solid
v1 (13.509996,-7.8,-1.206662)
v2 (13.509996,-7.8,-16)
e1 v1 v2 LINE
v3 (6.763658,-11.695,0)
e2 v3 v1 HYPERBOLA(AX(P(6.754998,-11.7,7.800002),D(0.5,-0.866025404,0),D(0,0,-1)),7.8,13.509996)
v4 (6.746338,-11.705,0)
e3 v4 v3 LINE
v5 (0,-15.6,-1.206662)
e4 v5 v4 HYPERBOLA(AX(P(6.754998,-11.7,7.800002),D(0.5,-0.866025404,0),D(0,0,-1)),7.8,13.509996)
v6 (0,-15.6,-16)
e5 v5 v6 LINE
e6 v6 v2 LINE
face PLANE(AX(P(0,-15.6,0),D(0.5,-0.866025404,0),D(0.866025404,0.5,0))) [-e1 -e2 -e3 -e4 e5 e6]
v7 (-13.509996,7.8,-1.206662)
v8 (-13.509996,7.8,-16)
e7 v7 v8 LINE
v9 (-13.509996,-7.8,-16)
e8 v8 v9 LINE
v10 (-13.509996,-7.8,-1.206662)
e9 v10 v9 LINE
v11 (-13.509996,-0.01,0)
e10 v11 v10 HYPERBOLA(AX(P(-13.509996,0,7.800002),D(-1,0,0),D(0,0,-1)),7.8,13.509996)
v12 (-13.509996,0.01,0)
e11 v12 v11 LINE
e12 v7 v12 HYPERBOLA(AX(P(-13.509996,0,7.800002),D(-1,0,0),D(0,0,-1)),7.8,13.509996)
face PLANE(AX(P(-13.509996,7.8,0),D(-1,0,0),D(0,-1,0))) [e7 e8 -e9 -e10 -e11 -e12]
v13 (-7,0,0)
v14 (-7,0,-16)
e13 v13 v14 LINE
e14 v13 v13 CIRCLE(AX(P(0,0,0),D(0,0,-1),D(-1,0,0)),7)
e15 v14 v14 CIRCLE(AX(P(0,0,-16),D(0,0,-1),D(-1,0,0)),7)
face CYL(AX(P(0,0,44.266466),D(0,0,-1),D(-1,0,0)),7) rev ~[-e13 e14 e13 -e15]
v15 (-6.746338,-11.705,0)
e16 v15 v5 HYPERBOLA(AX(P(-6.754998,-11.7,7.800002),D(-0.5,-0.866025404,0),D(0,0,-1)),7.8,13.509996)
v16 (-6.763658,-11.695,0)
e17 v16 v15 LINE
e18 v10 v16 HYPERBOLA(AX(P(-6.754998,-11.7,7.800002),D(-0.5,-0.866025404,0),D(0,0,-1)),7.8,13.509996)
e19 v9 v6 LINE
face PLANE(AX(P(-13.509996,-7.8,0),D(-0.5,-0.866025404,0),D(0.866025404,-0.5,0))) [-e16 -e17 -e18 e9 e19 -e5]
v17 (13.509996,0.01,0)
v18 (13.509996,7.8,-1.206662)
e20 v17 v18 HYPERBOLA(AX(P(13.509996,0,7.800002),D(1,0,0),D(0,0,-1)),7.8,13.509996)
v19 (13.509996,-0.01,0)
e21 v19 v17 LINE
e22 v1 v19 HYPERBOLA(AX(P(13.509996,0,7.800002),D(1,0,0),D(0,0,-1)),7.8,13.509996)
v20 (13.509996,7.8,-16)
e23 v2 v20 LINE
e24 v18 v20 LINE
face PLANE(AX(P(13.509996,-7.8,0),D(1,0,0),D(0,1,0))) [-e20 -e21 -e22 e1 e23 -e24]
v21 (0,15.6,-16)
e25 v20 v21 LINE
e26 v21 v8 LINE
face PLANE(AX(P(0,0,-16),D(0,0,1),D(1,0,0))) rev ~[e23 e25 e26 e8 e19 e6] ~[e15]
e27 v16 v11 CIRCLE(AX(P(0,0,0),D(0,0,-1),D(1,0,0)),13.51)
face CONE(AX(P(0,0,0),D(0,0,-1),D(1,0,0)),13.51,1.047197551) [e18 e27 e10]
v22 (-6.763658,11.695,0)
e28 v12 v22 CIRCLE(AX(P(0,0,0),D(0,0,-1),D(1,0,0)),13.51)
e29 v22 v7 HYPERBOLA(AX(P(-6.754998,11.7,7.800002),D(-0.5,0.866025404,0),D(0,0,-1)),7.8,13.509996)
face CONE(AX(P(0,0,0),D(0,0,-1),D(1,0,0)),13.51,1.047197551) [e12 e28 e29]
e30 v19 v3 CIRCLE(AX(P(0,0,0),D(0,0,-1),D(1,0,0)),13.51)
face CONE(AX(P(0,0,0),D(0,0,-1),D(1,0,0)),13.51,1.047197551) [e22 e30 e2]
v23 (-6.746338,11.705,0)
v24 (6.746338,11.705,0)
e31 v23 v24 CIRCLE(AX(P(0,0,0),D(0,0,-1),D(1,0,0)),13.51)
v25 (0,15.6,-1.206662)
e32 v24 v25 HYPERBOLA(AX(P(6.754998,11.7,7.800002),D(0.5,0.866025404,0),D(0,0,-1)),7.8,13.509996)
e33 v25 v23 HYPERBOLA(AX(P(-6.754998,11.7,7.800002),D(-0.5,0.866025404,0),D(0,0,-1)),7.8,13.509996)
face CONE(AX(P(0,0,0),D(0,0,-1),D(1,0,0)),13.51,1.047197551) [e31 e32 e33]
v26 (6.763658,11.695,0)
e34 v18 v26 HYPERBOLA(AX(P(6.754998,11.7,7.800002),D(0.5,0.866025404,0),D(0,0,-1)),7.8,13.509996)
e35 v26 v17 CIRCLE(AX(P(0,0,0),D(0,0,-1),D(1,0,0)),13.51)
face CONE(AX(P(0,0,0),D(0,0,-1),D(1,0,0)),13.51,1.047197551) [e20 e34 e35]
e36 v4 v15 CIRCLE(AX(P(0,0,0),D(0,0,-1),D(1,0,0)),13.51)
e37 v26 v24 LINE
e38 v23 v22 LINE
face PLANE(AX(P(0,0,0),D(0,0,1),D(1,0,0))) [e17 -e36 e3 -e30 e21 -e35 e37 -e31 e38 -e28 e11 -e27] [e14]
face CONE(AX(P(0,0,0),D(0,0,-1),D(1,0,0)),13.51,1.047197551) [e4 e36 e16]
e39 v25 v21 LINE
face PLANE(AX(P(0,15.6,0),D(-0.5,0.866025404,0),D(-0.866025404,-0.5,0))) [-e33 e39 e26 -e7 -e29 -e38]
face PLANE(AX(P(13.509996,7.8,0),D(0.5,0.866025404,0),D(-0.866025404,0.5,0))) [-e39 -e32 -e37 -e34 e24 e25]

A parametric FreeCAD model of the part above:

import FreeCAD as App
import Part
import Sketcher
from FreeCAD import Vector
Q = App.Units.Quantity

doc = App.newDocument("Part")
body = doc.addObject("PartDesign::Body", "Body")

# Sketch on XY plane
sketch1 = doc.addObject("Sketcher::SketchObject", "Sketch")
body.addObject(sketch1)
sketch1.AttachmentSupport = (doc.XY_Plane, [""])
sketch1.MapMode = "FlatFace"
sketch1.addGeometry(Part.LineSegment(Vector(13.509996, -7.8, 0), Vector(13.509996, 7.8, 0)), False)
sketch1.addGeometry(Part.LineSegment(Vector(13.509996, 7.8, 0), Vector(0, 15.6, 0)), False)
sketch1.addGeometry(Part.LineSegment(Vector(0, 15.6, 0), Vector(-13.509996, 7.8, 0)), False)
sketch1.addGeometry(Part.LineSegment(Vector(-13.509996, 7.8, 0), Vector(-13.509996, -7.8, 0)), False)
sketch1.addGeometry(Part.LineSegment(Vector(-13.509996, -7.8, 0), Vector(0, -15.6, 0)), False)
sketch1.addGeometry(Part.LineSegment(Vector(0, -15.6, 0), Vector(13.509996, -7.8, 0)), False)
sketch1.addConstraint(Sketcher.Constraint("Coincident", 0, 2, 1, 1))
sketch1.addConstraint(Sketcher.Constraint("Coincident", 1, 2, 2, 1))
sketch1.addConstraint(Sketcher.Constraint("Coincident", 2, 2, 3, 1))
sketch1.addConstraint(Sketcher.Constraint("Coincident", 3, 2, 4, 1))
sketch1.addConstraint(Sketcher.Constraint("Coincident", 4, 2, 5, 1))
sketch1.addConstraint(Sketcher.Constraint("Coincident", 5, 2, 0, 1))
sketch1.addConstraint(Sketcher.Constraint("Vertical", 0))
sketch1.addConstraint(Sketcher.Constraint("Vertical", 3))
sketch1.addConstraint(Sketcher.Constraint("Symmetric", 0, 2, 3, 2, -1, 1))
sketch1.addConstraint(Sketcher.Constraint("Symmetric", 1, 2, 4, 2, -1, 1))
sketch1.addConstraint(Sketcher.Constraint("PointOnObject", 1, 2, -2))
sketch1.addConstraint(Sketcher.Constraint("Parallel", 2, 5))
sketch1.addConstraint(Sketcher.Constraint("Horizontal", 0, 2, 2, 2))
sketch1.addConstraint(Sketcher.Constraint("Angle", 1, Q("150 deg")))
sketch1.addConstraint(Sketcher.Constraint("DistanceY", 0, 1, 0, 2, Q("15.6 mm")))
sketch1.addConstraint(Sketcher.Constraint("Distance", 1, Q("15.6 mm")))
pad1 = doc.addObject("PartDesign::Pad", "Pad")
body.addObject(pad1)
pad1.Profile = sketch1
pad1.Length = 16
pad1.Reversed = True

# Sketch on XZ plane
sketch2 = doc.addObject("Sketcher::SketchObject", "Sketch001")
body.addObject(sketch2)
sketch2.AttachmentSupport = (doc.XZ_Plane, [""])
sketch2.MapMode = "FlatFace"
sketch2.addGeometry(Part.LineSegment(Vector(16, -1.437602, 0), Vector(16, 0, 0)), False)
sketch2.addGeometry(Part.LineSegment(Vector(16, 0, 0), Vector(13.51, 0, 0)), False)
sketch2.addGeometry(Part.LineSegment(Vector(13.51, 0, 0), Vector(16, -1.437602, 0)), False)
sketch2.addConstraint(Sketcher.Constraint("Coincident", 0, 2, 1, 1))
sketch2.addConstraint(Sketcher.Constraint("Coincident", 1, 2, 2, 1))
sketch2.addConstraint(Sketcher.Constraint("Coincident", 2, 2, 0, 1))
sketch2.addConstraint(Sketcher.Constraint("Vertical", 0))
sketch2.addConstraint(Sketcher.Constraint("Horizontal", 1))
sketch2.addConstraint(Sketcher.Constraint("PointOnObject", 0, 2, -1))
sketch2.addConstraint(Sketcher.Constraint("Angle", 2, Q("-30 deg")))
sketch2.addConstraint(Sketcher.Constraint("DistanceX", -1, 1, 0, 2, Q("16 mm")))
sketch2.addConstraint(Sketcher.Constraint("DistanceX", 1, 2, 1, 1, Q("2.49 mm")))
groove = doc.addObject("PartDesign::Groove", "Groove")
body.addObject(groove)
groove.Profile = sketch2
groove.ReferenceAxis = (sketch2, ["V_Axis"])
groove.Angle = 360

# Sketch on XY plane
sketch3 = doc.addObject("Sketcher::SketchObject", "Sketch002")
body.addObject(sketch3)
sketch3.AttachmentSupport = (doc.XY_Plane, [""])
sketch3.MapMode = "FlatFace"
sketch3.addGeometry(Part.Circle(Vector(0, 0, 0), Vector(0, 0, 1), 7), False)
sketch3.addConstraint(Sketcher.Constraint("Coincident", 0, 3, -1, 1))
sketch3.addConstraint(Sketcher.Constraint("Diameter", 0, Q("14 mm")))
doc.recompute()
hole = doc.addObject("PartDesign::Hole", "Hole")
body.addObject(hole)
hole.Profile = sketch3
hole.ThreadType = "None"
hole.Diameter = 14
hole.DepthType = "ThroughAll"

doc.recompute()
